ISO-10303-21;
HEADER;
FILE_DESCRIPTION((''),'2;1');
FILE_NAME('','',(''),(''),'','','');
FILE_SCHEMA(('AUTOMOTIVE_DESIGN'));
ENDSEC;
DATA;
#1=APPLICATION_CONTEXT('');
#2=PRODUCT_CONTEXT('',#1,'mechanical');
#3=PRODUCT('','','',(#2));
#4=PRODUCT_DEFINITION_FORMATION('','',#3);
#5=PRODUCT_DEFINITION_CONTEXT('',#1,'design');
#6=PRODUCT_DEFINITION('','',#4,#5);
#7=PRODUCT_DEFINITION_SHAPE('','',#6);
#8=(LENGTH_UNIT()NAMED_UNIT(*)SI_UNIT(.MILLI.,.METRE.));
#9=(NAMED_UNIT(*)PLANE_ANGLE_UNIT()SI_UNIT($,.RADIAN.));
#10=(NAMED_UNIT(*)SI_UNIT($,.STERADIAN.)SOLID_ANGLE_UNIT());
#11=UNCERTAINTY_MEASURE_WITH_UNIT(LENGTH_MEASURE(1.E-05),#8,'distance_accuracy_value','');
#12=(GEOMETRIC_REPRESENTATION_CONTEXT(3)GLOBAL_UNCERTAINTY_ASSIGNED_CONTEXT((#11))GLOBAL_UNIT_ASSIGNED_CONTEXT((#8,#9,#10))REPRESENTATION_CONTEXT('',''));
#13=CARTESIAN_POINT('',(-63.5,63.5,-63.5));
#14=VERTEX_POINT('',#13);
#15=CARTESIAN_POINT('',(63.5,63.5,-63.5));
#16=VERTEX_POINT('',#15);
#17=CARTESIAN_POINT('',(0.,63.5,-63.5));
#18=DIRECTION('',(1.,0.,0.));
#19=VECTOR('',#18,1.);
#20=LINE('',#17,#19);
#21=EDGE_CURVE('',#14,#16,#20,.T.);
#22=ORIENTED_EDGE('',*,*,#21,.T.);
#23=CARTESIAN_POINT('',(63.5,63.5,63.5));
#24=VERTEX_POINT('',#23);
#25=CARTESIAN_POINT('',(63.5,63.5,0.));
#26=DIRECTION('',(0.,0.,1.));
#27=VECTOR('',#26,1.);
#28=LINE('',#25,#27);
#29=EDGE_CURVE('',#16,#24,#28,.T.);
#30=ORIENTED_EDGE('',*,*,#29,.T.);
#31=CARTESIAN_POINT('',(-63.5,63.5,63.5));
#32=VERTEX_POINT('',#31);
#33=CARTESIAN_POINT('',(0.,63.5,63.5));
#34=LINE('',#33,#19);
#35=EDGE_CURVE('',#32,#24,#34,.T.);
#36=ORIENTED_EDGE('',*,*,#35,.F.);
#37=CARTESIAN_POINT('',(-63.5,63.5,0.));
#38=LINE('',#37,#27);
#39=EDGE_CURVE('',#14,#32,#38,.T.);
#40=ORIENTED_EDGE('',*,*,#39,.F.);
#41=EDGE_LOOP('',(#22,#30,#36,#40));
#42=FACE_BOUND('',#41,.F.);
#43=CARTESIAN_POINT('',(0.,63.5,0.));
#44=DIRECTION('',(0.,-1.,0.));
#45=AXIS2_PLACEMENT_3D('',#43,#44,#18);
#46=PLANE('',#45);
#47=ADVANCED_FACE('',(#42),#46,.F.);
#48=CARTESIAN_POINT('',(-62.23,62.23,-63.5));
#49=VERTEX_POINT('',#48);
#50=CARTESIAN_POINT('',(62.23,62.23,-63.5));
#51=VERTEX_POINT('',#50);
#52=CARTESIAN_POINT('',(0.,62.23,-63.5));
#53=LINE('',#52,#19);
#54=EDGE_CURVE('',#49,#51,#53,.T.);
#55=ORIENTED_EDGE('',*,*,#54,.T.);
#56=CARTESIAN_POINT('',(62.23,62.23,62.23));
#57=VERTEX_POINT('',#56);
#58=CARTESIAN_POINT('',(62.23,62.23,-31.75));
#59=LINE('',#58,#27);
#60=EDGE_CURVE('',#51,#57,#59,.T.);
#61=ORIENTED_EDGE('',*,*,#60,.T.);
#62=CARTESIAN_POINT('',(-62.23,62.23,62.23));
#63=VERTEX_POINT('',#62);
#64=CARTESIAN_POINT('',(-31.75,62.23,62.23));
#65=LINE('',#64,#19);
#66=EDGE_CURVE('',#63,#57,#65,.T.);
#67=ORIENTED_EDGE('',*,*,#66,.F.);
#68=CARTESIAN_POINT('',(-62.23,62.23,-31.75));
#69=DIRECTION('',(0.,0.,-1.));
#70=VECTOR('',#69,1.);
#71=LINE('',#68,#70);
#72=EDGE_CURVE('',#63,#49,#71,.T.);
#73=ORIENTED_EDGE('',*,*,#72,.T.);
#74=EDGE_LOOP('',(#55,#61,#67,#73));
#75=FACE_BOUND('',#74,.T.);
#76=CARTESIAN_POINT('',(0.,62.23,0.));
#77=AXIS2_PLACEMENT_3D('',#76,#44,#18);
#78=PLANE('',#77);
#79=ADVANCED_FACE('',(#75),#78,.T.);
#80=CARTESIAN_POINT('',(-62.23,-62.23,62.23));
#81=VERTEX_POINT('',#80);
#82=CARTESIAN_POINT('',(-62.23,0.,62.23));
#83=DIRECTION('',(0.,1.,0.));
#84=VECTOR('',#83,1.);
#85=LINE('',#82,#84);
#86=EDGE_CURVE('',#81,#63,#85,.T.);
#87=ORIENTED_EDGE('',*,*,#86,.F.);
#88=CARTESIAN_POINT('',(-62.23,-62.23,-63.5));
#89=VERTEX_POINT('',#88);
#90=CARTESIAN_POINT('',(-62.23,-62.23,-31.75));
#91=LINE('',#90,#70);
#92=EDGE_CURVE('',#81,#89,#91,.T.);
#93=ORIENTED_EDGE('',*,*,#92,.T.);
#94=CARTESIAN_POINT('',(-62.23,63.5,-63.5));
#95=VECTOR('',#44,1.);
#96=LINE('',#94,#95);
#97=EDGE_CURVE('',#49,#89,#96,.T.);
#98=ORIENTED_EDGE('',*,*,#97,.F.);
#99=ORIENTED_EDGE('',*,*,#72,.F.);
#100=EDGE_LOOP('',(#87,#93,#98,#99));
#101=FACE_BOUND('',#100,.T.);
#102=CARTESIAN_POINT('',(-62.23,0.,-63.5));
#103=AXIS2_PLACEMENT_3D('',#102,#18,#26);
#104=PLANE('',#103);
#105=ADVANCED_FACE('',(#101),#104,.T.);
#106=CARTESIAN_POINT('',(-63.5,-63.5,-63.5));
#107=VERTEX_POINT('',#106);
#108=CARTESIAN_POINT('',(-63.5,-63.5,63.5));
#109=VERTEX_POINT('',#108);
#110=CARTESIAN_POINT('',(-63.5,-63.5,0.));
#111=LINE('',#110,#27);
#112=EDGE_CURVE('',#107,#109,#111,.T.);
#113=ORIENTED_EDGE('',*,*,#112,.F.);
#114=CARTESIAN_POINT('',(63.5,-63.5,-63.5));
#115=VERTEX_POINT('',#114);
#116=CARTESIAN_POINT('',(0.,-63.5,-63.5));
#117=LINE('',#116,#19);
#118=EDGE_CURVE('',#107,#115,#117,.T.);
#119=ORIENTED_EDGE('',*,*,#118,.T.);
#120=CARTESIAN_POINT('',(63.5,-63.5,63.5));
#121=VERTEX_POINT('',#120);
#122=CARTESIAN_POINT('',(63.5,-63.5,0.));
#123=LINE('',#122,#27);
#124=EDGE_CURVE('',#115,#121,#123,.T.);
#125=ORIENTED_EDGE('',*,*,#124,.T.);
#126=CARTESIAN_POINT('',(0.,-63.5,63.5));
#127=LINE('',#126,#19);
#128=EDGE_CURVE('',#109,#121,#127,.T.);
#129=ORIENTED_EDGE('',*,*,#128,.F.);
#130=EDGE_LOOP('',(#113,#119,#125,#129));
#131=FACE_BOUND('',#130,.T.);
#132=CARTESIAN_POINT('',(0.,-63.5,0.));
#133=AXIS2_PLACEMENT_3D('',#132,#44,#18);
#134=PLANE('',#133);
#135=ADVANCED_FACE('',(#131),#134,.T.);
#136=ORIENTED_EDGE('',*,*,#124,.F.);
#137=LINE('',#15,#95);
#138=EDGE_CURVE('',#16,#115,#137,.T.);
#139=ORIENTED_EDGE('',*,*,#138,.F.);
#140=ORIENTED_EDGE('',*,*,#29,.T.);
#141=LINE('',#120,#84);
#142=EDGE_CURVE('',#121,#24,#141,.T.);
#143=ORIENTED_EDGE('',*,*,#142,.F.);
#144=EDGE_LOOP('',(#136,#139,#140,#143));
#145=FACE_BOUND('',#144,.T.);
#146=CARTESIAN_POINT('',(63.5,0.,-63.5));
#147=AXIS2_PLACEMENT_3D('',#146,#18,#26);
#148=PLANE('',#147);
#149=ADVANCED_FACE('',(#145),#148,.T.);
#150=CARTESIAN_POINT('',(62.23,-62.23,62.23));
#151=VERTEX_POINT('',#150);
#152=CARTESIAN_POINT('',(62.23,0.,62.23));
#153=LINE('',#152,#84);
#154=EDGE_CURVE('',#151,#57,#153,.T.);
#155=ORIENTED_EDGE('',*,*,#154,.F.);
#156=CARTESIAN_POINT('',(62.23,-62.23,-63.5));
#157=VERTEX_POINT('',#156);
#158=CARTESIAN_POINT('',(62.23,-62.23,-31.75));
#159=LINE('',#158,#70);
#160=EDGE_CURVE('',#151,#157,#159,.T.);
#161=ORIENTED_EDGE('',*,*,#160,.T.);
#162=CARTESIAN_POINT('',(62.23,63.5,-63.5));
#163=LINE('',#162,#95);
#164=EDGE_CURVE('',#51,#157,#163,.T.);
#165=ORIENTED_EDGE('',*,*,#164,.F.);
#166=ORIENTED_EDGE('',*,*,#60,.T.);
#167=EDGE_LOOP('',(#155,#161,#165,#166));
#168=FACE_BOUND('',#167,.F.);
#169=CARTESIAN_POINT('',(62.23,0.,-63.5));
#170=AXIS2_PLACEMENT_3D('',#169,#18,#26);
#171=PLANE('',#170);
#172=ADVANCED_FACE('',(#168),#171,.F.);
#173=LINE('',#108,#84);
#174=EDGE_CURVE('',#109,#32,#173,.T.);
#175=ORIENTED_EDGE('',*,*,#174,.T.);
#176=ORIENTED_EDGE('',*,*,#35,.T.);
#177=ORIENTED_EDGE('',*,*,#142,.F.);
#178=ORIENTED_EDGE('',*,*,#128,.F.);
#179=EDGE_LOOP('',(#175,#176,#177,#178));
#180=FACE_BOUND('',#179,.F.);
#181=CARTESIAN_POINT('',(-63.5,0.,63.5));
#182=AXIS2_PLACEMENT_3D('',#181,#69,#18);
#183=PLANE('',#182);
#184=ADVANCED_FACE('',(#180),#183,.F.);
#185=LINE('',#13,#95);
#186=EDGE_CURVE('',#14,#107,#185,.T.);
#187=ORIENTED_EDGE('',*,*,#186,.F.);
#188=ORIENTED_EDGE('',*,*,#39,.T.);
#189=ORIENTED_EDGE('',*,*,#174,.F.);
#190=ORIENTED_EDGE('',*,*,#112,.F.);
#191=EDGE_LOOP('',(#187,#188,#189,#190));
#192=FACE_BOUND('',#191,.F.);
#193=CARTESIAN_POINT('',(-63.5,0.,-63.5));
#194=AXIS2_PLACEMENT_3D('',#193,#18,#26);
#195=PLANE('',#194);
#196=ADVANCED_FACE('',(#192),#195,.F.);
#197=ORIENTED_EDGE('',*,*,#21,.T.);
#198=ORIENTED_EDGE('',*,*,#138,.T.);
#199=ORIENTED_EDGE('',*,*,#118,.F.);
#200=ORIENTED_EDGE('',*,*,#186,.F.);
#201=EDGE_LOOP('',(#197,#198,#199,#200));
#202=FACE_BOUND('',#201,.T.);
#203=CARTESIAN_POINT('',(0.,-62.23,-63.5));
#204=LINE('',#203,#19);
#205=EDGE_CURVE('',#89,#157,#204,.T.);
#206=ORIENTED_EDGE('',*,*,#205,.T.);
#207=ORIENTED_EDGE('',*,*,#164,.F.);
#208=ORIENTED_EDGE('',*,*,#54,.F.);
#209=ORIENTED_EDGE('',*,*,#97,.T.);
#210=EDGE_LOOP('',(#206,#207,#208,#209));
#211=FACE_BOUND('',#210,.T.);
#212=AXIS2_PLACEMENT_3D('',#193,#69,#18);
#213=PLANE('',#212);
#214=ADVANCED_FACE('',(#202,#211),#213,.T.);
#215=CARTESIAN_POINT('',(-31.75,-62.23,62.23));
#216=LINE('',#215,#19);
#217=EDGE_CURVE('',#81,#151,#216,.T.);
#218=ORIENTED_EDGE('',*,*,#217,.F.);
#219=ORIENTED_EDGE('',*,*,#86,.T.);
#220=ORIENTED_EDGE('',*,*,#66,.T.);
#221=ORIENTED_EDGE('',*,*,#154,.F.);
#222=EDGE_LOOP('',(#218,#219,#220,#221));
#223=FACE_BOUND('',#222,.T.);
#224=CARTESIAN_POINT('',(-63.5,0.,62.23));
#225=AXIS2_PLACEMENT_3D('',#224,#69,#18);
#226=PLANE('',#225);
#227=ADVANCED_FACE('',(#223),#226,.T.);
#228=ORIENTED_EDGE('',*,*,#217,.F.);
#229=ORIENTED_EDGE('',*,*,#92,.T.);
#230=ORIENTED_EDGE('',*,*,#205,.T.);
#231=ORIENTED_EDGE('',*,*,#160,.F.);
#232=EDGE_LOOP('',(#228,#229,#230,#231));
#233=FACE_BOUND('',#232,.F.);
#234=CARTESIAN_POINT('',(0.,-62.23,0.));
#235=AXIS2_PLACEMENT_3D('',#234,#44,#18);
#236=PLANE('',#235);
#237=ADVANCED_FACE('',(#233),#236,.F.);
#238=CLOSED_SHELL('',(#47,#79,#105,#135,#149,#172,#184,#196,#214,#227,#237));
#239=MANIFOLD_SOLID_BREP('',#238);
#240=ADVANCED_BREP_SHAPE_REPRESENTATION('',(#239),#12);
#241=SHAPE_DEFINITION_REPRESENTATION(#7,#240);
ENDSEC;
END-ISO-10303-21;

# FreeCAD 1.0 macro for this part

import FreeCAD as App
import Part
import Sketcher
from FreeCAD import Vector
Q = App.Units.Quantity


def faces_at(feature, points):
    """Names of the faces that lie closest to the given points."""
    faces = feature.Shape.Faces
    near = lambda p: min(range(len(faces)), key=lambda i: faces[i].distToShape(Part.Vertex(*p))[0])
    return sorted({f"Face{near(p) + 1}" for p in points})

doc = App.newDocument("Part")
body = doc.addObject("PartDesign::Body", "Body")

# Sketch on XZ plane
sketch1 = doc.addObject("Sketcher::SketchObject", "Sketch")
body.addObject(sketch1)
sketch1.AttachmentSupport = (doc.XZ_Plane, [""])
sketch1.MapMode = "FlatFace"
sketch1.addGeometry([
    Part.LineSegment(Vector(-63.5, 63.5, 0), Vector(-63.5, -63.5, 0)),
    Part.LineSegment(Vector(-63.5, -63.5, 0), Vector(63.5, -63.5, 0)),
    Part.LineSegment(Vector(63.5, -63.5, 0), Vector(63.5, 63.5, 0)),
    Part.LineSegment(Vector(63.5, 63.5, 0), Vector(-63.5, 63.5, 0)),
], False)
sketch1.addConstraint([
    Sketcher.Constraint("Coincident", 0, 2, 1, 1),
    Sketcher.Constraint("Coincident", 1, 2, 2, 1),
    Sketcher.Constraint("Coincident", 2, 2, 3, 1),
    Sketcher.Constraint("Coincident", 3, 2, 0, 1),
    Sketcher.Constraint("Vertical", 0),
    Sketcher.Constraint("Horizontal", 1),
    Sketcher.Constraint("Vertical", 2),
    Sketcher.Constraint("Horizontal", 3),
    Sketcher.Constraint("Symmetric", 0, 2, 2, 2, -1, 1),
    Sketcher.Constraint("Equal", 3, 0),
    Sketcher.Constraint("DistanceX", 1, 1, 1, 2, Q("5 in")),
])
pad1 = doc.addObject("PartDesign::Pad", "Pad")
body.addObject(pad1)
pad1.Profile = sketch1
pad1.Length = Q("5 in")
pad1.Midplane = True
doc.recompute()

thickness = doc.addObject("PartDesign::Thickness", "Thickness")
body.addObject(thickness)
thickness.Base = (pad1, faces_at(pad1, [(0, 0, -63.5)]))
thickness.Value = Q("0.05 in")
thickness.Reversed = True
thickness.Join = "Arc"

doc.recompute()
